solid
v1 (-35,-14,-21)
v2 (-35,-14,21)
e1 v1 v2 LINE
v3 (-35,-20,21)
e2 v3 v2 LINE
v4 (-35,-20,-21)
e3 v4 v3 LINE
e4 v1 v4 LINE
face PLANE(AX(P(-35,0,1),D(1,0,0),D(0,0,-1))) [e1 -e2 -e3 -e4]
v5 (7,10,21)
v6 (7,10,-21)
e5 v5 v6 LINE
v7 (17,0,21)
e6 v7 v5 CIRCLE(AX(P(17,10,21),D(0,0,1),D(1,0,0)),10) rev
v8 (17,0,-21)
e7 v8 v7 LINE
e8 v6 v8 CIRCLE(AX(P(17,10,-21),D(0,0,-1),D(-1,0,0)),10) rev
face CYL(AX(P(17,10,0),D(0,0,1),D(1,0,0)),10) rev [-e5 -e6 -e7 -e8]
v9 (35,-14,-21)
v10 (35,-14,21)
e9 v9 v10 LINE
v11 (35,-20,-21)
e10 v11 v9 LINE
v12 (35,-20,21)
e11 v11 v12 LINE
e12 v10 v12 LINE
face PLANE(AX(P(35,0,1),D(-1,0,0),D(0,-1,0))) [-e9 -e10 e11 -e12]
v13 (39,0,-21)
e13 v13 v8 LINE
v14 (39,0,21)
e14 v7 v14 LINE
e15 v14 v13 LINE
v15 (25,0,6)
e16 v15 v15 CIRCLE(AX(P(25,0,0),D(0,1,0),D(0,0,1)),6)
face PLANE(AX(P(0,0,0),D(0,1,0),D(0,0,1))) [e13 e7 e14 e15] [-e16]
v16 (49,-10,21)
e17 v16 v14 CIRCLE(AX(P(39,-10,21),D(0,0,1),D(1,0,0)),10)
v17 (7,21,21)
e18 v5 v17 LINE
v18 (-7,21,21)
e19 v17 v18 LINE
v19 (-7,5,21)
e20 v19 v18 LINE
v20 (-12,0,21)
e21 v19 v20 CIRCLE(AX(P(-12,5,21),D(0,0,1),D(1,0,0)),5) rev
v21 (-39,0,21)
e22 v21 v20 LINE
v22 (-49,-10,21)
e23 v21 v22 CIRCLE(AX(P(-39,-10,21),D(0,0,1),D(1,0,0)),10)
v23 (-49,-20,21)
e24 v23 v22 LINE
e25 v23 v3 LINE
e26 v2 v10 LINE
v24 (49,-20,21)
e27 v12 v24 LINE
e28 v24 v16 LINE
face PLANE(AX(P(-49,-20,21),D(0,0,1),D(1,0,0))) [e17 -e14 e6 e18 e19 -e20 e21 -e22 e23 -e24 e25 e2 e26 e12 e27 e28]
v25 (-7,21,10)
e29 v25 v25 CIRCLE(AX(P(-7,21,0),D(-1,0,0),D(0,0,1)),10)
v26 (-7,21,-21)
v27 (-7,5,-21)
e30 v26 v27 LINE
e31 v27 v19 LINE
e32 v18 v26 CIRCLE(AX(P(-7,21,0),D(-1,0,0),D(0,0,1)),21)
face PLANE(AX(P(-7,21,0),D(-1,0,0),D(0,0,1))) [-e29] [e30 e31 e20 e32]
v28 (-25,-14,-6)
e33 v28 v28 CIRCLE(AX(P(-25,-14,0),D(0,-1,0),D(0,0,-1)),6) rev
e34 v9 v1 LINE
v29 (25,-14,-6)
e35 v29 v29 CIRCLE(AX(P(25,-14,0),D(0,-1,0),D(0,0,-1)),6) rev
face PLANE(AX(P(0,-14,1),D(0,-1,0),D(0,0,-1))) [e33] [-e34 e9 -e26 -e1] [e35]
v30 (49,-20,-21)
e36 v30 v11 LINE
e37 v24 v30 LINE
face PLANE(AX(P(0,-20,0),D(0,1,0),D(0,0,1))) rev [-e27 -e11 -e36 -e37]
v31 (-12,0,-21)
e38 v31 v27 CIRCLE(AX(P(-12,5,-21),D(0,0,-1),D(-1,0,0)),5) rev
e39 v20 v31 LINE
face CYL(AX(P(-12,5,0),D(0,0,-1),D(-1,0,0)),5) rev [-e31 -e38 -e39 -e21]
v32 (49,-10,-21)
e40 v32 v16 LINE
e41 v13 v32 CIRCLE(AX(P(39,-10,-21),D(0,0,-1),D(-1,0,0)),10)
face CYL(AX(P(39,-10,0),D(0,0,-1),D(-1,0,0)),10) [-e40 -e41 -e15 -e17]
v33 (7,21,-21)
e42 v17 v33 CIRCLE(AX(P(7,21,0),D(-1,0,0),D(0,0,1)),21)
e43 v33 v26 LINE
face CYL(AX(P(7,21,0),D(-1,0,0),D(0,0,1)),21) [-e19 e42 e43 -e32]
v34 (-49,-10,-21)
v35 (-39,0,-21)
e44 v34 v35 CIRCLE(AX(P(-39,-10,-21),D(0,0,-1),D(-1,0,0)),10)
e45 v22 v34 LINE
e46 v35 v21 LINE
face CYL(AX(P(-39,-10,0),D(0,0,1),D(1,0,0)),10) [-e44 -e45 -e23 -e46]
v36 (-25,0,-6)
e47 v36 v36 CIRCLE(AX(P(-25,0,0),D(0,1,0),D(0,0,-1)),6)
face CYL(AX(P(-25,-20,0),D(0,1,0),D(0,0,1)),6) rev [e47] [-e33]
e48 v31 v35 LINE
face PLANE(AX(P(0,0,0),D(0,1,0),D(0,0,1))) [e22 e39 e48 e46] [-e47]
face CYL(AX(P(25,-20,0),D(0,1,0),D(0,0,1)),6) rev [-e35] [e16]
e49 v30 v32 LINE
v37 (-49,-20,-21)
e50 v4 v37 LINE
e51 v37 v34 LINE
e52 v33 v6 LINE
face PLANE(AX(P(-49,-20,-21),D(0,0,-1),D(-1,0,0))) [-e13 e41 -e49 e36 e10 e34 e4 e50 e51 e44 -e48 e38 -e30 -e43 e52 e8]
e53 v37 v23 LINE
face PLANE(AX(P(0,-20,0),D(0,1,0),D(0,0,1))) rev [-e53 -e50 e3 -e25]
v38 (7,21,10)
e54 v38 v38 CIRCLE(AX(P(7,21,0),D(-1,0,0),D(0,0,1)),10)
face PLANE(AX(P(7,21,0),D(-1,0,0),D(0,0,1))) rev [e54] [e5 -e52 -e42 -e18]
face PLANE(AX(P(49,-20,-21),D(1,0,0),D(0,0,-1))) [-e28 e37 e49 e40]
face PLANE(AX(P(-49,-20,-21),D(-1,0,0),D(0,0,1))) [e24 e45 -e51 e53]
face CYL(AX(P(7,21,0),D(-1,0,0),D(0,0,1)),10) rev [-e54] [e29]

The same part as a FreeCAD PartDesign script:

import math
import FreeCAD as App
import Part
import Sketcher


def edges_at(feature, points):
    """Names of the edges that pass closest to the given points."""
    edges = feature.Shape.Edges
    near = lambda p: min(range(len(edges)), key=lambda i: edges[i].distToShape(Part.Vertex(*p))[0])
    return sorted({f"Edge{near(p) + 1}" for p in points})

doc = App.newDocument("Part")
params = doc.addObject("Spreadsheet::Sheet", "Params")
for row, (alias, value) in enumerate([
    ("sketch1_diameter", "12 mm"),
    ("sketch1_width", "98 mm"),
    ("sketch1_height", "42 mm"),
    ("pad1_length", "20 mm"),
    ("sketch2_width", "70 mm"),
    ("sketch2_height", "6 mm"),
    ("pocket1_length", "20 mm"),
    ("sketch3_width", "70 mm"),
    ("sketch3_height", "6 mm"),
    ("pocket2_length", "20 mm"),
    ("sketch4_height", "6 mm"),
    ("pocket3_length", "20 mm"),
    ("sketch5_height", "6 mm"),
    ("pocket4_length", "20 mm"),
    ("sketch6_height", "6 mm"),
    ("pocket5_length", "20 mm"),
    ("sketch7_diameter", "20 mm"),
    ("sketch7_radius", "21 mm"),
    ("sketch7_width", "21 mm"),
    ("pad2_length", "14 mm"),
    ("fillet_radius", "5 mm"),
    ("fillet2_radius", "10 mm"),
], start=1):
    params.set(f"A{row}", alias)
    params.set(f"B{row}", "=" + value)
    params.setAlias(f"B{row}", alias)

body = doc.addObject("PartDesign::Body", "Body")

# Sketch on XZ plane
sketch1 = doc.addObject("Sketcher::SketchObject", "Sketch")
body.addObject(sketch1)
sketch1.AttachmentSupport = (doc.XZ_Plane, [""])
sketch1.MapMode = "FlatFace"
sketch1.addGeometry([
    Part.LineSegment(App.Vector(-49, -21, 0), App.Vector(-49, 21, 0)),  # 0
    Part.LineSegment(App.Vector(-49, 21, 0), App.Vector(49, 21, 0)),  # 1
    Part.LineSegment(App.Vector(49, 21, 0), App.Vector(49, -21, 0)),  # 2
    Part.LineSegment(App.Vector(49, -21, 0), App.Vector(-49, -21, 0)),  # 3
    Part.Circle(App.Vector(-25, 0, 0), App.Vector(0, 0, 1), 6),  # 4
    Part.Circle(App.Vector(25, 0, 0), App.Vector(0, 0, 1), 6),  # 5
], False)
sketch1.addConstraint([
    Sketcher.Constraint("Coincident", 0, 2, 1, 1),
    Sketcher.Constraint("Coincident", 1, 2, 2, 1),
    Sketcher.Constraint("Coincident", 2, 2, 3, 1),
    Sketcher.Constraint("Coincident", 3, 2, 0, 1),
    Sketcher.Constraint("Vertical", 0),
    Sketcher.Constraint("Horizontal", 1),
    Sketcher.Constraint("Vertical", 2),
    Sketcher.Constraint("Horizontal", 3),
    Sketcher.Constraint("Equal", 4, 5),
    Sketcher.Constraint("Symmetric", 4, 3, 5, 3, -1, 1),
    Sketcher.Constraint("Symmetric", 0, 2, 2, 2, -1, 1),
    Sketcher.Constraint("PointOnObject", 4, 3, -1),
    Sketcher.Constraint("Diameter", 4, 12.0),
    Sketcher.Constraint("DistanceX", 1, 1, 1, 2, 98.0),
    Sketcher.Constraint("DistanceY", 0, 1, 0, 2, 42.0),
    Sketcher.Constraint("DistanceX", 4, 3, -1, 1, 25.0),
])
sketch1.setExpression("Constraints[12]", "Params.sketch1_diameter")
sketch1.setExpression("Constraints[13]", "Params.sketch1_width")
sketch1.setExpression("Constraints[14]", "Params.sketch1_height")
pad1 = doc.addObject("PartDesign::Pad", "Pad")
body.addObject(pad1)
pad1.Profile = sketch1
pad1.setExpression("Length", "Params.pad1_length")

# Sketch on XY plane
sketch2 = doc.addObject("Sketcher::SketchObject", "Sketch001")
body.addObject(sketch2)
sketch2.AttachmentSupport = (doc.XY_Plane, [""])
sketch2.MapMode = "FlatFace"
sketch2.AttachmentOffset = App.Placement(App.Vector(0, 0, 21), App.Rotation())
sketch2.addGeometry([
    Part.LineSegment(App.Vector(-35, -14, 0), App.Vector(-35, -20, 0)),
    Part.LineSegment(App.Vector(-35, -20, 0), App.Vector(35, -20, 0)),
    Part.LineSegment(App.Vector(35, -20, 0), App.Vector(35, -14, 0)),
    Part.LineSegment(App.Vector(35, -14, 0), App.Vector(-35, -14, 0)),
], False)
sketch2.addConstraint([
    Sketcher.Constraint("Coincident", 0, 2, 1, 1),
    Sketcher.Constraint("Coincident", 1, 2, 2, 1),
    Sketcher.Constraint("Coincident", 2, 2, 3, 1),
    Sketcher.Constraint("Coincident", 3, 2, 0, 1),
    Sketcher.Constraint("Vertical", 0),
    Sketcher.Constraint("Horizontal", 1),
    Sketcher.Constraint("Vertical", 2),
    Sketcher.Constraint("Horizontal", 3),
    Sketcher.Constraint("DistanceX", 1, 1, 1, 2, 70.0),
    Sketcher.Constraint("DistanceY", 0, 2, 0, 1, 6.0),
    Sketcher.Constraint("DistanceX", 0, 2, -1, 1, 35.0),
    Sketcher.Constraint("DistanceY", 0, 2, -1, 1, 20.0),
])
sketch2.setExpression("Constraints[8]", "Params.sketch2_width")
sketch2.setExpression("Constraints[9]", "Params.sketch2_height")
pocket1 = doc.addObject("PartDesign::Pocket", "Pocket")
body.addObject(pocket1)
pocket1.Profile = sketch2
pocket1.setExpression("Length", "Params.pocket1_length")

# Sketch on XY plane
sketch3 = doc.addObject("Sketcher::SketchObject", "Sketch002")
body.addObject(sketch3)
sketch3.AttachmentSupport = (doc.XY_Plane, [""])
sketch3.MapMode = "FlatFace"
sketch3.AttachmentOffset = App.Placement(App.Vector(0, 0, -21), App.Rotation())
sketch3.addGeometry([
    Part.LineSegment(App.Vector(35, -14, 0), App.Vector(35, -20, 0)),
    Part.LineSegment(App.Vector(35, -20, 0), App.Vector(-35, -20, 0)),
    Part.LineSegment(App.Vector(-35, -20, 0), App.Vector(-35, -14, 0)),
    Part.LineSegment(App.Vector(-35, -14, 0), App.Vector(35, -14, 0)),
], False)
sketch3.addConstraint([
    Sketcher.Constraint("Coincident", 0, 2, 1, 1),
    Sketcher.Constraint("Coincident", 1, 2, 2, 1),
    Sketcher.Constraint("Coincident", 2, 2, 3, 1),
    Sketcher.Constraint("Coincident", 3, 2, 0, 1),
    Sketcher.Constraint("Vertical", 0),
    Sketcher.Constraint("Horizontal", 1),
    Sketcher.Constraint("Vertical", 2),
    Sketcher.Constraint("Horizontal", 3),
    Sketcher.Constraint("DistanceX", 1, 2, 1, 1, 70.0),
    Sketcher.Constraint("DistanceY", 0, 2, 0, 1, 6.0),
    Sketcher.Constraint("DistanceX", -1, 1, 0, 2, 35.0),
    Sketcher.Constraint("DistanceY", 0, 2, -1, 1, 20.0),
])
sketch3.setExpression("Constraints[8]", "Params.sketch3_width")
sketch3.setExpression("Constraints[9]", "Params.sketch3_height")
pocket2 = doc.addObject("PartDesign::Pocket", "Pocket001")
body.addObject(pocket2)
pocket2.Profile = sketch3
pocket2.setExpression("Length", "Params.pocket2_length")
pocket2.Reversed = True

# Sketch on XY plane
sketch4 = doc.addObject("Sketcher::SketchObject", "Sketch003")
body.addObject(sketch4)
sketch4.AttachmentSupport = (doc.XY_Plane, [""])
sketch4.MapMode = "FlatFace"
sketch4.AttachmentOffset = App.Placement(App.Vector(0, 0, 1), App.Rotation())
sketch4.addGeometry([
    Part.LineSegment(App.Vector(30.9, -14, 0), App.Vector(30.9, -20, 0)),
    Part.LineSegment(App.Vector(30.9, -20, 0), App.Vector(35, -20, 0)),
    Part.LineSegment(App.Vector(35, -20, 0), App.Vector(35, -14, 0)),
    Part.LineSegment(App.Vector(35, -14, 0), App.Vector(30.9, -14, 0)),
], False)
sketch4.addConstraint([
    Sketcher.Constraint("Coincident", 0, 2, 1, 1),
    Sketcher.Constraint("Coincident", 1, 2, 2, 1),
    Sketcher.Constraint("Coincident", 2, 2, 3, 1),
    Sketcher.Constraint("Coincident", 3, 2, 0, 1),
    Sketcher.Constraint("Vertical", 0),
    Sketcher.Constraint("Horizontal", 1),
    Sketcher.Constraint("Vertical", 2),
    Sketcher.Constraint("Horizontal", 3),
    Sketcher.Constraint("DistanceY", 0, 2, 0, 1, 6.0),
    Sketcher.Constraint("DistanceY", 0, 2, -1, 1, 20.0),
    Sketcher.Constraint("DistanceX", -1, 1, 1, 2, 35.0),
    Sketcher.Constraint("DistanceX", 1, 1, 1, 2, 4.08392),
])
sketch4.setExpression("Constraints[8]", "Params.sketch4_height")
pocket3 = doc.addObject("PartDesign::Pocket", "Pocket002")
body.addObject(pocket3)
pocket3.Profile = sketch4
pocket3.setExpression("Length", "Params.pocket3_length")

# Sketch on XY plane
sketch5 = doc.addObject("Sketcher::SketchObject", "Sketch004")
body.addObject(sketch5)
sketch5.AttachmentSupport = (doc.XY_Plane, [""])
sketch5.MapMode = "FlatFace"
sketch5.AttachmentOffset = App.Placement(App.Vector(0, 0, 1), App.Rotation())
sketch5.addGeometry([
    Part.LineSegment(App.Vector(-35, -14, 0), App.Vector(-35, -20, 0)),
    Part.LineSegment(App.Vector(-35, -20, 0), App.Vector(-30.9, -20, 0)),
    Part.LineSegment(App.Vector(-30.9, -20, 0), App.Vector(-30.9, -14, 0)),
    Part.LineSegment(App.Vector(-30.9, -14, 0), App.Vector(-35, -14, 0)),
], False)
sketch5.addConstraint([
    Sketcher.Constraint("Coincident", 0, 2, 1, 1),
    Sketcher.Constraint("Coincident", 1, 2, 2, 1),
    Sketcher.Constraint("Coincident", 2, 2, 3, 1),
    Sketcher.Constraint("Coincident", 3, 2, 0, 1),
    Sketcher.Constraint("Vertical", 0),
    Sketcher.Constraint("Horizontal", 1),
    Sketcher.Constraint("Vertical", 2),
    Sketcher.Constraint("Horizontal", 3),
    Sketcher.Constraint("DistanceY", 0, 2, 0, 1, 6.0),
    Sketcher.Constraint("DistanceX", 0, 2, -1, 1, 35.0),
    Sketcher.Constraint("DistanceY", 0, 2, -1, 1, 20.0),
    Sketcher.Constraint("DistanceX", 1, 1, 1, 2, 4.08392),
])
sketch5.setExpression("Constraints[8]", "Params.sketch5_height")
pocket4 = doc.addObject("PartDesign::Pocket", "Pocket003")
body.addObject(pocket4)
pocket4.Profile = sketch5
pocket4.setExpression("Length", "Params.pocket4_length")

# Sketch on XY plane
sketch6 = doc.addObject("Sketcher::SketchObject", "Sketch005")
body.addObject(sketch6)
sketch6.AttachmentSupport = (doc.XY_Plane, [""])
sketch6.MapMode = "FlatFace"
sketch6.AttachmentOffset = App.Placement(App.Vector(0, 0, 1), App.Rotation())
sketch6.addGeometry([
    Part.LineSegment(App.Vector(-19, -14, 0), App.Vector(-19, -20, 0)),
    Part.LineSegment(App.Vector(-19, -20, 0), App.Vector(19, -20, 0)),
    Part.LineSegment(App.Vector(19, -20, 0), App.Vector(19, -14, 0)),
    Part.LineSegment(App.Vector(19, -14, 0), App.Vector(-19, -14, 0)),
], False)
sketch6.addConstraint([
    Sketcher.Constraint("Coincident", 0, 2, 1, 1),
    Sketcher.Constraint("Coincident", 1, 2, 2, 1),
    Sketcher.Constraint("Coincident", 2, 2, 3, 1),
    Sketcher.Constraint("Coincident", 3, 2, 0, 1),
    Sketcher.Constraint("Vertical", 0),
    Sketcher.Constraint("Horizontal", 1),
    Sketcher.Constraint("Vertical", 2),
    Sketcher.Constraint("Horizontal", 3),
    Sketcher.Constraint("DistanceY", 0, 2, 0, 1, 6.0),
    Sketcher.Constraint("DistanceY", 0, 2, -1, 1, 20.0),
    Sketcher.Constraint("DistanceX", 1, 1, 1, 2, 38.16784),
    Sketcher.Constraint("DistanceX", 0, 2, -1, 1, 19.08392),
])
sketch6.setExpression("Constraints[8]", "Params.sketch6_height")
pocket5 = doc.addObject("PartDesign::Pocket", "Pocket004")
body.addObject(pocket5)
pocket5.Profile = sketch6
pocket5.setExpression("Length", "Params.pocket5_length")

# Sketch on YZ plane
sketch7 = doc.addObject("Sketcher::SketchObject", "Sketch006")
body.addObject(sketch7)
sketch7.AttachmentSupport = (doc.YZ_Plane, [""])
sketch7.MapMode = "FlatFace"
sketch7.addGeometry([
    Part.LineSegment(App.Vector(0, -21, 0), App.Vector(0, 21, 0)),  # 0
    Part.LineSegment(App.Vector(0, 21, 0), App.Vector(21, 21, 0)),  # 1
    Part.ArcOfCircle(Part.Circle(App.Vector(21, 0, 0), App.Vector(0, 0, 1), 21), math.radians(-90), math.radians(90)),  # 2
    Part.LineSegment(App.Vector(21, -21, 0), App.Vector(0, -21, 0)),  # 3
    Part.Circle(App.Vector(21, 0, 0), App.Vector(0, 0, 1), 10),  # 4
], False)
sketch7.addConstraint([
    Sketcher.Constraint("Coincident", 0, 2, 1, 1),
    Sketcher.Constraint("Tangent", 1, 2, 2, 2),
    Sketcher.Constraint("Tangent", 2, 1, 3, 1),
    Sketcher.Constraint("Coincident", 3, 2, 0, 1),
    Sketcher.Constraint("Vertical", 0),
    Sketcher.Constraint("Horizontal", 1),
    Sketcher.Constraint("Horizontal", 3),
    Sketcher.Constraint("Coincident", 4, 3, 2, 3),
    Sketcher.Constraint("Symmetric", 0, 2, 3, 2, -1, 1),
    Sketcher.Constraint("Diameter", 4, 20.0),
    Sketcher.Constraint("Radius", 2, 21.0),
    Sketcher.Constraint("DistanceX", 1, 1, 1, 2, 21.0),
])
sketch7.setExpression("Constraints[9]", "Params.sketch7_diameter")
sketch7.setExpression("Constraints[10]", "Params.sketch7_radius")
sketch7.setExpression("Constraints[11]", "Params.sketch7_width")
pad2 = doc.addObject("PartDesign::Pad", "Pad001")
body.addObject(pad2)
pad2.Profile = sketch7
pad2.setExpression("Length", "Params.pad2_length")
pad2.Midplane = True
doc.recompute()

fillet = doc.addObject("PartDesign::Fillet", "Fillet")
body.addObject(fillet)
fillet.Base = (pad2, edges_at(pad2, [(-7, 0, 0)]))
fillet.setExpression("Radius", "Params.fillet_radius")
doc.recompute()

fillet2 = doc.addObject("PartDesign::Fillet", "Fillet001")
body.addObject(fillet2)
fillet2.Base = (fillet, edges_at(fillet, [(7, 0, 0), (-49, 0, 0), (49, 0, 0)]))
fillet2.setExpression("Radius", "Params.fillet2_radius")

doc.recompute()
